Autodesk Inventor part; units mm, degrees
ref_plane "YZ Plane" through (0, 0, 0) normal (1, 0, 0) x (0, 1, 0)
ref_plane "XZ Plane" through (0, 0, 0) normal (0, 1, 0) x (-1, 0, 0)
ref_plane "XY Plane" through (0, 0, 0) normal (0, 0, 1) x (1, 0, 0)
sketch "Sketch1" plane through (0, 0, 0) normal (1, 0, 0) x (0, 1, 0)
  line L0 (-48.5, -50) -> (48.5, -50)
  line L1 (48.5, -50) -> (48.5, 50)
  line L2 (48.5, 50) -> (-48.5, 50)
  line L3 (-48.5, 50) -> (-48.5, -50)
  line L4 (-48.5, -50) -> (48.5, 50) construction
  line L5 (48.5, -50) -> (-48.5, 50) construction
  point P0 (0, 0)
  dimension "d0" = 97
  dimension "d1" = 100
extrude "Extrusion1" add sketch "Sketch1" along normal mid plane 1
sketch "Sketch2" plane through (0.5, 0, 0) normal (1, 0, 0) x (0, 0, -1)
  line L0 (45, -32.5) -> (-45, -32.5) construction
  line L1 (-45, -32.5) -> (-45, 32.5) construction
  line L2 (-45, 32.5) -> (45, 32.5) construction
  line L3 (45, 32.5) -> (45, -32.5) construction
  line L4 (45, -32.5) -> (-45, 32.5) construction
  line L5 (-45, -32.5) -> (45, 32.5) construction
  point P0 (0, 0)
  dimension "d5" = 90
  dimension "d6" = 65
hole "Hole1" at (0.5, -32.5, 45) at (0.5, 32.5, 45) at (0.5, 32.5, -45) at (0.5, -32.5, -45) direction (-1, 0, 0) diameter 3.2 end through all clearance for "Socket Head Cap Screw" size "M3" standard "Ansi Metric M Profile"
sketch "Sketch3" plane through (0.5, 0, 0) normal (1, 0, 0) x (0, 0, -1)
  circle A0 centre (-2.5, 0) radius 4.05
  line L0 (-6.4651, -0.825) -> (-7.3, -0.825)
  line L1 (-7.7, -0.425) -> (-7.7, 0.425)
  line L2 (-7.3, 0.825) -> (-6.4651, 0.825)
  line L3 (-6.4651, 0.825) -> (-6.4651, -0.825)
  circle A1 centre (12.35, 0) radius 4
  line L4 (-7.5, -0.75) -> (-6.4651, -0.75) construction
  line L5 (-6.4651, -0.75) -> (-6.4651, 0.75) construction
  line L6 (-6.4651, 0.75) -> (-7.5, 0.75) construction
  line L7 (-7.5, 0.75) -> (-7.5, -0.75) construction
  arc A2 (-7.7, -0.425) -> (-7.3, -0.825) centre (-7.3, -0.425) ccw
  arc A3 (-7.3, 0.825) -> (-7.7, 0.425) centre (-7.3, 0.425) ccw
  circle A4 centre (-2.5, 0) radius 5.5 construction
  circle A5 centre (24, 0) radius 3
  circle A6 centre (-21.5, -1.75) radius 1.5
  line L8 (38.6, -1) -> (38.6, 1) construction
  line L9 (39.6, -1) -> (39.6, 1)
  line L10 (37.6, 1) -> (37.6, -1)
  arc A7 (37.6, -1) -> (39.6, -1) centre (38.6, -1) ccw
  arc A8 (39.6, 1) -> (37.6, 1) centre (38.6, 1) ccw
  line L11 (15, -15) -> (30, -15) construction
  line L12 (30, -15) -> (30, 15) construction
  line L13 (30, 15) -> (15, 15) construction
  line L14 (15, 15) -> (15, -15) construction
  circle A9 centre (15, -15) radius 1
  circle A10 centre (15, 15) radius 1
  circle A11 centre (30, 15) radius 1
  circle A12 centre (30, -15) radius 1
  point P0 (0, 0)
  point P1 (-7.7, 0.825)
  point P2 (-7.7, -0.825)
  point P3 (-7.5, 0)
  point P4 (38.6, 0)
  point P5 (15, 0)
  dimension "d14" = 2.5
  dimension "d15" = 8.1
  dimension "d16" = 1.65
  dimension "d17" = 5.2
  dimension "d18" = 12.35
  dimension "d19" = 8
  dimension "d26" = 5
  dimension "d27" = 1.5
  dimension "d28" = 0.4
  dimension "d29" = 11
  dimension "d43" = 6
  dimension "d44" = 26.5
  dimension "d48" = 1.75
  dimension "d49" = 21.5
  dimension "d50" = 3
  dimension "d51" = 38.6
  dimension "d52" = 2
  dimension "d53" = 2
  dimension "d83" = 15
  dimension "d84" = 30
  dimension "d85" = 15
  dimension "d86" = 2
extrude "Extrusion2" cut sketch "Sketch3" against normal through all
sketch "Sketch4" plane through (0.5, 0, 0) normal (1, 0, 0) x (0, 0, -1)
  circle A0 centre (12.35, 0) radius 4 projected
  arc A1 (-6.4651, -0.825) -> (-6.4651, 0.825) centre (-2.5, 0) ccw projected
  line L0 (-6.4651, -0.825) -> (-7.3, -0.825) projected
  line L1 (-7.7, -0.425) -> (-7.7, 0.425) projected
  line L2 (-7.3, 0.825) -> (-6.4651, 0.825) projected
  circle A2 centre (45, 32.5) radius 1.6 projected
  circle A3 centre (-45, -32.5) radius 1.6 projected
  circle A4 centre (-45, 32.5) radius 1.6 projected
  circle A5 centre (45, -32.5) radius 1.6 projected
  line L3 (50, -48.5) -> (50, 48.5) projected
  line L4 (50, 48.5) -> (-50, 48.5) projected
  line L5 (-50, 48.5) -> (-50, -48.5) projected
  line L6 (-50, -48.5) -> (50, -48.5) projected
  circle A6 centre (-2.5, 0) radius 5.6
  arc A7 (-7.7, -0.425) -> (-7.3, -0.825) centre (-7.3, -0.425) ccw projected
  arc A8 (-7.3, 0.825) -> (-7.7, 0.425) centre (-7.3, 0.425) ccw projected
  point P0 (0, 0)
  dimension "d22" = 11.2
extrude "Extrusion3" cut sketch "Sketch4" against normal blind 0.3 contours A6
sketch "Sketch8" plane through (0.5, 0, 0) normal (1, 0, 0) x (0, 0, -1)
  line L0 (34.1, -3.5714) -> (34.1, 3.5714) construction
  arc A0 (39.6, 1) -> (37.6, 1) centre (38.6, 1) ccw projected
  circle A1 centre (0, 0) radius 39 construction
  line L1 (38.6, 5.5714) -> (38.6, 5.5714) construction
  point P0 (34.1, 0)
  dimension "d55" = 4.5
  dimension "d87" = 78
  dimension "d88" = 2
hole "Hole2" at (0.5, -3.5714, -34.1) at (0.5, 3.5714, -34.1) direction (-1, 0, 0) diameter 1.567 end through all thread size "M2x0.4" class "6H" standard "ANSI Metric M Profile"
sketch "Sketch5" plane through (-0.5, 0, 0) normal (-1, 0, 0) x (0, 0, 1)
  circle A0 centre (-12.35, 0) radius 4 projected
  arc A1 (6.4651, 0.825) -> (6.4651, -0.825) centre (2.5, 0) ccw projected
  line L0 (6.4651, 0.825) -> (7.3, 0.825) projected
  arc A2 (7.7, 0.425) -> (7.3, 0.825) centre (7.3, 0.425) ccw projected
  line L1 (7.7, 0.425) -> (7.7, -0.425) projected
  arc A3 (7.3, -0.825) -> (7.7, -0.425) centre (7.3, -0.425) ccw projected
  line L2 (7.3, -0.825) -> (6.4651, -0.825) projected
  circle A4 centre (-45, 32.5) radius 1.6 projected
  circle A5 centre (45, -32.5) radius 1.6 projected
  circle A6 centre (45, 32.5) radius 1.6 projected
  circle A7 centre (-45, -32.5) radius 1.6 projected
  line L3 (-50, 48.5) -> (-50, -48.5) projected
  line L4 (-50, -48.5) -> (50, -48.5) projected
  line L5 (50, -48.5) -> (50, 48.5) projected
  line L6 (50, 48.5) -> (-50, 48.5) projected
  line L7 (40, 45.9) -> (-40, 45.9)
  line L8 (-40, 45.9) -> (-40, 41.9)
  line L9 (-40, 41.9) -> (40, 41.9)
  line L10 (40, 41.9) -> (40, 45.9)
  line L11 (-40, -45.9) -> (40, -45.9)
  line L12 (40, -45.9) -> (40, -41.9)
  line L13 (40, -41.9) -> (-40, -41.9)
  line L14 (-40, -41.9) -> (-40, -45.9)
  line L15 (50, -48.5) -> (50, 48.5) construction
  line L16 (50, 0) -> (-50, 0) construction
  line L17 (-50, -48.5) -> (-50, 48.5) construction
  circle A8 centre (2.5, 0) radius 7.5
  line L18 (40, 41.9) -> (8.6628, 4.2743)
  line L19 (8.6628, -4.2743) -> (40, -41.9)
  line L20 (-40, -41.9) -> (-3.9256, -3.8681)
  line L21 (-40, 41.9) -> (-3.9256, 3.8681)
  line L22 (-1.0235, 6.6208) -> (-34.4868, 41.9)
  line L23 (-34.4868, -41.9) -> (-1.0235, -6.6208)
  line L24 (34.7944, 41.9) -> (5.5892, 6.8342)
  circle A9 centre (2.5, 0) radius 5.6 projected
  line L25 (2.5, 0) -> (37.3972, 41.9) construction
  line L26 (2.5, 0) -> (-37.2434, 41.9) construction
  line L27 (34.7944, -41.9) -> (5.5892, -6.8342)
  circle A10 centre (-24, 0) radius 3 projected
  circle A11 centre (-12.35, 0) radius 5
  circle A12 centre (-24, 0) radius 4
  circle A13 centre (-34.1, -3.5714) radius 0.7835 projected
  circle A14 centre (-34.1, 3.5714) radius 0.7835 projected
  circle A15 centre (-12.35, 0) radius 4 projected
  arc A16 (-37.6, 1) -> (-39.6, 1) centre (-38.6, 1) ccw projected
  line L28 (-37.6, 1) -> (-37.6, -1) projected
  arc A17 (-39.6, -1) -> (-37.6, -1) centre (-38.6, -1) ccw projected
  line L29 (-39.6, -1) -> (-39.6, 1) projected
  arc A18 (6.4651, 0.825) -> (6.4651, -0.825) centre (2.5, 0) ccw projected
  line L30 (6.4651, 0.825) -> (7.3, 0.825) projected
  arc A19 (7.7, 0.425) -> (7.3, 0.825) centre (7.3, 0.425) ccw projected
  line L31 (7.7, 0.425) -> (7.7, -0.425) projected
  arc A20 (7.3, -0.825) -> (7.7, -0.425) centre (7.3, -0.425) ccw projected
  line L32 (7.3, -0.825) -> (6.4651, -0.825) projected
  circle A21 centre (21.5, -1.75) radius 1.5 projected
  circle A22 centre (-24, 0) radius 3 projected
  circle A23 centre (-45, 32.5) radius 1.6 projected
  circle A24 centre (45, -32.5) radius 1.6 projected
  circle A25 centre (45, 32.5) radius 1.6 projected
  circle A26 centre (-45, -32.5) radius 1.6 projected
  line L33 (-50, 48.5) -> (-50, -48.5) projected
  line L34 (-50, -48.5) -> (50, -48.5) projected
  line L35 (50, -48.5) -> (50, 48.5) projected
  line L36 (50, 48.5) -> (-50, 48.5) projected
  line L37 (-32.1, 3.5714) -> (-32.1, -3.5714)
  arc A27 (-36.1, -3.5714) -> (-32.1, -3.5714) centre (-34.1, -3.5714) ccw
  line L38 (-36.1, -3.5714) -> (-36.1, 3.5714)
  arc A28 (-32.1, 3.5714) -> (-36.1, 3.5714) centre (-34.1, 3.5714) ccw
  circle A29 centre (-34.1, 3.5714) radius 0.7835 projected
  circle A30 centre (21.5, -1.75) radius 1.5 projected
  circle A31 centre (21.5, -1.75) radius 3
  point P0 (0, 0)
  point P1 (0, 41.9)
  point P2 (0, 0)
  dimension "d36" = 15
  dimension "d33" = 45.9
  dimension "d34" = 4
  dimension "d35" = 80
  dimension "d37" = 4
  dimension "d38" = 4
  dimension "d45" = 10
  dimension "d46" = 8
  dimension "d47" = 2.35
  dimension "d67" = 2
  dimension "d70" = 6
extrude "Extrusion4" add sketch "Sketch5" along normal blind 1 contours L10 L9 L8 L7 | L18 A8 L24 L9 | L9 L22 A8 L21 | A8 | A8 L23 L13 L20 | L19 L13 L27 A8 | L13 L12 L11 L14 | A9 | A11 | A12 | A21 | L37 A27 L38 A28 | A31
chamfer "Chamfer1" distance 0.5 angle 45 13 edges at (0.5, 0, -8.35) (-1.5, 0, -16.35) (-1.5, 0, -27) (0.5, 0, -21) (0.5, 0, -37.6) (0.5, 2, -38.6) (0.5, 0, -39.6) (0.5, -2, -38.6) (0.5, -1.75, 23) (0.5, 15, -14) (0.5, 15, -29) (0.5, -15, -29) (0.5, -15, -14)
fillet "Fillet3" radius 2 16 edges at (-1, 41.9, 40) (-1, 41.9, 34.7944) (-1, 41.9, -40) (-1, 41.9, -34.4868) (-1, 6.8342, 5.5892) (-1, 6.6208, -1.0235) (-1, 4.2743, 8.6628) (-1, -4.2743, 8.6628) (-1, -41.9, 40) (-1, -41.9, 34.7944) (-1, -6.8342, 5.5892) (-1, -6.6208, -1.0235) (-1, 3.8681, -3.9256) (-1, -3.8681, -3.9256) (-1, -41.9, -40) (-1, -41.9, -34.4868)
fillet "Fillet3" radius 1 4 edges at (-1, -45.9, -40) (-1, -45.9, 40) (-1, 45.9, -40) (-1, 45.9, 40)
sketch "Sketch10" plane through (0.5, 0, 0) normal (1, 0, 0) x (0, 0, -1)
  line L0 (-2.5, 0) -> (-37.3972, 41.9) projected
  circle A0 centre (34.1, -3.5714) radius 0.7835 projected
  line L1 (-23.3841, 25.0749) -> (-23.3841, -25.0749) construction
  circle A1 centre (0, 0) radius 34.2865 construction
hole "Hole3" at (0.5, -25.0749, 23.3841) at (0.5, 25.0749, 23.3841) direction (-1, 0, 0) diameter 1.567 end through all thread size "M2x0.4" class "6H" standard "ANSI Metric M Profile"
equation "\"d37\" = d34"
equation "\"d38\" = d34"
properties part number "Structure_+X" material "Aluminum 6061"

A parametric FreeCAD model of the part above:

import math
import FreeCAD as App
import Part
import Sketcher
from FreeCAD import Vector
Q = App.Units.Quantity


def edges_at(feature, points):
    """Names of the edges that pass closest to the given points."""
    edges = feature.Shape.Edges
    near = lambda p: min(range(len(edges)), key=lambda i: edges[i].distToShape(Part.Vertex(*p))[0])
    return sorted({f"Edge{near(p) + 1}" for p in points})


def add_polygon(sketch, points):
    """Adds a closed chain of lines whose ends are joined by coincident constraints."""
    first, n = sketch.GeometryCount, len(points)
    for a, b in zip(points, points[1:] + points[:1]):
        sketch.addGeometry(Part.LineSegment(App.Vector(*a, 0), App.Vector(*b, 0)), False)
    for i in range(n):
        sketch.addConstraint(Sketcher.Constraint("Coincident", first + i, 2, first + (i + 1) % n, 1))

doc = App.newDocument("Part")
body = doc.addObject("PartDesign::Body", "Body")

# Sketch on YZ plane
sketch1 = doc.addObject("Sketcher::SketchObject", "Sketch")
body.addObject(sketch1)
sketch1.AttachmentSupport = (doc.YZ_Plane, [""])
sketch1.MapMode = "FlatFace"
add_polygon(sketch1, [(-48.5, 50), (-48.5, -50), (48.5, -50), (48.5, 50)])  # lines 0-3
sketch1.addConstraint(Sketcher.Constraint("Vertical", 0))
sketch1.addConstraint(Sketcher.Constraint("Horizontal", 1))
sketch1.addConstraint(Sketcher.Constraint("Vertical", 2))
sketch1.addConstraint(Sketcher.Constraint("Horizontal", 3))
sketch1.addConstraint(Sketcher.Constraint("Symmetric", 0, 2, 2, 2, -1, 1))
sketch1.addConstraint(Sketcher.Constraint("DistanceX", 1, 1, 1, 2, 97.0))
sketch1.addConstraint(Sketcher.Constraint("DistanceY", 0, 2, 0, 1, 100.0))
pad1 = doc.addObject("PartDesign::Pad", "Pad")
body.addObject(pad1)
pad1.Profile = sketch1
pad1.Length = 1
pad1.Midplane = True

# Sketch on YZ plane
sketch2 = doc.addObject("Sketcher::SketchObject", "Sketch001")
body.addObject(sketch2)
sketch2.AttachmentSupport = (doc.YZ_Plane, [""])
sketch2.MapMode = "FlatFace"
sketch2.AttachmentOffset = App.Placement(Vector(0, 0, 0.5), App.Rotation())
sketch2.addGeometry(Part.Circle(Vector(-32.5, 45, 0), Vector(0, 0, 1), 1.6), False)
sketch2.addGeometry(Part.Circle(Vector(32.5, 45, 0), Vector(0, 0, 1), 1.6), False)
sketch2.addGeometry(Part.Circle(Vector(32.5, -45, 0), Vector(0, 0, 1), 1.6), False)
sketch2.addGeometry(Part.Circle(Vector(-32.5, -45, 0), Vector(0, 0, 1), 1.6), False)
sketch2.addConstraint(Sketcher.Constraint("Equal", 0, 1))
sketch2.addConstraint(Sketcher.Constraint("Equal", 1, 2))
sketch2.addConstraint(Sketcher.Constraint("Equal", 2, 3))
sketch2.addConstraint(Sketcher.Constraint("Symmetric", 0, 3, 2, 3, -1, 1))
sketch2.addConstraint(Sketcher.Constraint("Symmetric", 1, 3, 3, 3, -1, 1))
sketch2.addConstraint(Sketcher.Constraint("Symmetric", 0, 3, 1, 3, -2))
sketch2.addConstraint(Sketcher.Constraint("Diameter", 0, 3.2))
sketch2.addConstraint(Sketcher.Constraint("DistanceY", -1, 1, 0, 3, 45.0))
sketch2.addConstraint(Sketcher.Constraint("DistanceX", 0, 3, 1, 3, 65.0))
doc.recompute()
hole = doc.addObject("PartDesign::Hole", "Hole")
body.addObject(hole)
hole.Profile = sketch2
hole.ThreadType = "None"
hole.Diameter = 3.2
hole.DepthType = "ThroughAll"

# Sketch on YZ plane
sketch3 = doc.addObject("Sketcher::SketchObject", "Sketch002")
body.addObject(sketch3)
sketch3.AttachmentSupport = (doc.YZ_Plane, [""])
sketch3.MapMode = "FlatFace"
sketch3.AttachmentOffset = App.Placement(Vector(0, 0, 0.5), App.Rotation())
sketch3.addGeometry(Part.ArcOfCircle(Part.Circle(Vector(0, 2.5, 0), Vector(0, 0, 1), 4.05), math.radians(101.753574), math.radians(438.246426)), False)
sketch3.addGeometry(Part.LineSegment(Vector(0.825, 6.4651, 0), Vector(0.825, 7.3, 0)), False)
sketch3.addGeometry(Part.ArcOfCircle(Part.Circle(Vector(0.425, 7.3, 0), Vector(0, 0, 1), 0.4), math.radians(0), math.radians(90)), False)
sketch3.addGeometry(Part.LineSegment(Vector(0.425, 7.7, 0), Vector(-0.425, 7.7, 0)), False)
sketch3.addGeometry(Part.ArcOfCircle(Part.Circle(Vector(-0.425, 7.3, 0), Vector(0, 0, 1), 0.4), math.radians(90), math.radians(180)), False)
sketch3.addGeometry(Part.LineSegment(Vector(-0.825, 7.3, 0), Vector(-0.825, 6.4651, 0)), False)
sketch3.addGeometry(Part.Circle(Vector(0, -12.35, 0), Vector(0, 0, 1), 4), False)
sketch3.addGeometry(Part.Circle(Vector(0, -24, 0), Vector(0, 0, 1), 3), False)
sketch3.addGeometry(Part.Circle(Vector(-1.75, 21.5, 0), Vector(0, 0, 1), 1.5), False)
sketch3.addGeometry(Part.ArcOfCircle(Part.Circle(Vector(-1, -38.6, 0), Vector(0, 0, 1), 1), math.radians(90), math.radians(270)), False)
sketch3.addGeometry(Part.LineSegment(Vector(-1, -39.6, 0), Vector(1, -39.6, 0)), False)
sketch3.addGeometry(Part.ArcOfCircle(Part.Circle(Vector(1, -38.6, 0), Vector(0, 0, 1), 1), math.radians(-90), math.radians(90)), False)
sketch3.addGeometry(Part.LineSegment(Vector(1, -37.6, 0), Vector(-1, -37.6, 0)), False)
sketch3.addGeometry(Part.Circle(Vector(-15, -15, 0), Vector(0, 0, 1), 1), False)
sketch3.addGeometry(Part.Circle(Vector(15, -15, 0), Vector(0, 0, 1), 1), False)
sketch3.addGeometry(Part.Circle(Vector(15, -30, 0), Vector(0, 0, 1), 1), False)
sketch3.addGeometry(Part.Circle(Vector(-15, -30, 0), Vector(0, 0, 1), 1), False)
sketch3.addConstraint(Sketcher.Constraint("Coincident", 0, 2, 1, 1))
sketch3.addConstraint(Sketcher.Constraint("Tangent", 1, 2, 2, 1))
sketch3.addConstraint(Sketcher.Constraint("Tangent", 2, 2, 3, 1))
sketch3.addConstraint(Sketcher.Constraint("Tangent", 3, 2, 4, 1))
sketch3.addConstraint(Sketcher.Constraint("Tangent", 4, 2, 5, 1))
sketch3.addConstraint(Sketcher.Constraint("Coincident", 5, 2, 0, 1))
sketch3.addConstraint(Sketcher.Constraint("Tangent", 9, 2, 10, 1))
sketch3.addConstraint(Sketcher.Constraint("Tangent", 10, 2, 11, 1))
sketch3.addConstraint(Sketcher.Constraint("Tangent", 11, 2, 12, 1))
sketch3.addConstraint(Sketcher.Constraint("Tangent", 12, 2, 9, 1))
sketch3.addConstraint(Sketcher.Constraint("Vertical", 1))
sketch3.addConstraint(Sketcher.Constraint("Horizontal", 3))
sketch3.addConstraint(Sketcher.Constraint("Vertical", 5))
sketch3.addConstraint(Sketcher.Constraint("Horizontal", 10))
sketch3.addConstraint(Sketcher.Constraint("Horizontal", 12))
sketch3.addConstraint(Sketcher.Constraint("Equal", 2, 4))
sketch3.addConstraint(Sketcher.Constraint("Equal", 11, 13))
sketch3.addConstraint(Sketcher.Constraint("Equal", 13, 14))
sketch3.addConstraint(Sketcher.Constraint("Equal", 14, 15))
sketch3.addConstraint(Sketcher.Constraint("Equal", 15, 16))
sketch3.addConstraint(Sketcher.Constraint("Symmetric", 13, 3, 14, 3, -2))
sketch3.addConstraint(Sketcher.Constraint("Symmetric", 15, 3, 16, 3, -2))
sketch3.addConstraint(Sketcher.Constraint("Symmetric", 0, 2, 5, 2, -2))
sketch3.addConstraint(Sketcher.Constraint("PointOnObject", 6, 3, -2))
sketch3.addConstraint(Sketcher.Constraint("PointOnObject", 7, 3, -2))
sketch3.addConstraint(Sketcher.Constraint("Vertical", 14, 3, 15, 3))
sketch3.addConstraint(Sketcher.Constraint("Diameter", 6, 8.0))
sketch3.addConstraint(Sketcher.Constraint("Diameter", 7, 6.0))
sketch3.addConstraint(Sketcher.Constraint("Diameter", 8, 3.0))
sketch3.addConstraint(Sketcher.Constraint("Diameter", 13, 2.0))
sketch3.addConstraint(Sketcher.Constraint("Radius", 2, 0.4))
sketch3.addConstraint(Sketcher.Constraint("DistanceX", 10, 1, 10, 2, 2.0))
sketch3.addConstraint(Sketcher.Constraint("Radius", 0, 4.05))
sketch3.addConstraint(Sketcher.Constraint("DistanceX", 13, 3, -1, 1, 15.0))
sketch3.addConstraint(Sketcher.Constraint("DistanceY", 13, 3, -1, 1, 15.0))
sketch3.addConstraint(Sketcher.Constraint("DistanceY", 15, 3, -1, 1, 30.0))
sketch3.addConstraint(Sketcher.Constraint("DistanceY", 15, 3, 7, 3, 6.0))
sketch3.addConstraint(Sketcher.Constraint("DistanceY", -1, 1, 0, 3, 2.5))
sketch3.addConstraint(Sketcher.Constraint("DistanceY", -1, 1, 8, 3, 21.5))
sketch3.addConstraint(Sketcher.Constraint("DistanceY", 9, 3, -1, 1, 38.6))
sketch3.addConstraint(Sketcher.Constraint("DistanceY", 0, 3, 2, 2, 5.2))
sketch3.addConstraint(Sketcher.Constraint("DistanceY", 6, 3, -1, 1, 12.35))
sketch3.addConstraint(Sketcher.Constraint("DistanceX", 8, 3, -1, 1, 1.75))
sketch3.addConstraint(Sketcher.Constraint("DistanceX", 4, 2, 1, 2, 1.65))
sketch3.addConstraint(Sketcher.Constraint("DistanceX", 9, 3, -1, 1, 1.0))
pocket1 = doc.addObject("PartDesign::Pocket", "Pocket")
body.addObject(pocket1)
pocket1.Profile = sketch3
pocket1.Type = "ThroughAll"

# Sketch on YZ plane
sketch4 = doc.addObject("Sketcher::SketchObject", "Sketch003")
body.addObject(sketch4)
sketch4.AttachmentSupport = (doc.YZ_Plane, [""])
sketch4.MapMode = "FlatFace"
sketch4.AttachmentOffset = App.Placement(Vector(0, 0, 0.5), App.Rotation())
sketch4.addGeometry(Part.Circle(Vector(0, 2.5, 0), Vector(0, 0, 1), 5.6), False)
sketch4.addGeometry(Part.ArcOfCircle(Part.Circle(Vector(0, 2.5, 0), Vector(0, 0, 1), 4.050018), math.radians(101.753574), math.radians(438.246426)), False)
sketch4.addGeometry(Part.LineSegment(Vector(-0.825, 6.4651, 0), Vector(-0.825, 7.3, 0)), False)
sketch4.addGeometry(Part.ArcOfCircle(Part.Circle(Vector(-0.425, 7.3, 0), Vector(0, 0, 1), 0.4), math.radians(90), math.radians(180)), False)
sketch4.addGeometry(Part.LineSegment(Vector(-0.425, 7.7, 0), Vector(0.425, 7.7, 0)), False)
sketch4.addGeometry(Part.ArcOfCircle(Part.Circle(Vector(0.425, 7.3, 0), Vector(0, 0, 1), 0.4), math.radians(0), math.radians(90)), False)
sketch4.addGeometry(Part.LineSegment(Vector(0.825, 7.3, 0), Vector(0.825, 6.4651, 0)), False)
sketch4.addConstraint(Sketcher.Constraint("Coincident", 1, 1, 2, 1))
sketch4.addConstraint(Sketcher.Constraint("Tangent", 2, 2, 3, 2))
sketch4.addConstraint(Sketcher.Constraint("Tangent", 3, 1, 4, 1))
sketch4.addConstraint(Sketcher.Constraint("Tangent", 4, 2, 5, 2))
sketch4.addConstraint(Sketcher.Constraint("Tangent", 5, 1, 6, 1))
sketch4.addConstraint(Sketcher.Constraint("Coincident", 6, 2, 1, 2))
sketch4.addConstraint(Sketcher.Constraint("Vertical", 2))
sketch4.addConstraint(Sketcher.Constraint("Horizontal", 4))
sketch4.addConstraint(Sketcher.Constraint("Vertical", 6))
sketch4.addConstraint(Sketcher.Constraint("Coincident", 1, 3, 0, 3))
sketch4.addConstraint(Sketcher.Constraint("Equal", 3, 5))
sketch4.addConstraint(Sketcher.Constraint("Symmetric", 1, 1, 6, 2, -2))
sketch4.addConstraint(Sketcher.Constraint("Diameter", 0, 11.2))
sketch4.addConstraint(Sketcher.Constraint("Radius", 3, 0.4))
sketch4.addConstraint(Sketcher.Constraint("Radius", 1, 4.05))
sketch4.addConstraint(Sketcher.Constraint("DistanceX", 4, 1, 4, 2, 0.85))
sketch4.addConstraint(Sketcher.Constraint("DistanceY", -1, 1, 0, 3, 2.5))
sketch4.addConstraint(Sketcher.Constraint("DistanceY", -1, 1, 3, 3, 7.3))
pocket2 = doc.addObject("PartDesign::Pocket", "Pocket001")
body.addObject(pocket2)
pocket2.Profile = sketch4
pocket2.Length = 0.3

# Sketch on YZ plane
sketch5 = doc.addObject("Sketcher::SketchObject", "Sketch004")
body.addObject(sketch5)
sketch5.AttachmentSupport = (doc.YZ_Plane, [""])
sketch5.MapMode = "FlatFace"
sketch5.AttachmentOffset = App.Placement(Vector(0, 0, 0.5), App.Rotation())
sketch5.addGeometry(Part.Circle(Vector(-3.5714, -34.1, 0), Vector(0, 0, 1), 0.7835), False)
sketch5.addGeometry(Part.Circle(Vector(3.5714, -34.1, 0), Vector(0, 0, 1), 0.7835), False)
sketch5.addConstraint(Sketcher.Constraint("Equal", 0, 1))
sketch5.addConstraint(Sketcher.Constraint("Symmetric", 0, 3, 1, 3, -2))
sketch5.addConstraint(Sketcher.Constraint("Diameter", 0, 1.567))
sketch5.addConstraint(Sketcher.Constraint("DistanceY", 0, 3, -1, 1, 34.1))
sketch5.addConstraint(Sketcher.Constraint("DistanceX", 0, 3, -1, 1, 3.5714))
doc.recompute()
hole2 = doc.addObject("PartDesign::Hole", "Hole001")
body.addObject(hole2)
hole2.Profile = sketch5
hole2.ThreadType = "None"
hole2.Diameter = 1.567
hole2.DepthType = "ThroughAll"

# Sketch on YZ plane
sketch6 = doc.addObject("Sketcher::SketchObject", "Sketch005")
body.addObject(sketch6)
sketch6.AttachmentSupport = (doc.YZ_Plane, [""])
sketch6.MapMode = "FlatFace"
sketch6.AttachmentOffset = App.Placement(Vector(0, 0, -0.5), App.Rotation())
sketch6.addGeometry(Part.LineSegment(Vector(41.9, 40, 0), Vector(45.9, 40, 0)), False)
sketch6.addGeometry(Part.LineSegment(Vector(45.9, 40, 0), Vector(45.9, -40, 0)), False)
sketch6.addGeometry(Part.LineSegment(Vector(45.9, -40, 0), Vector(41.9, -40, 0)), False)
sketch6.addGeometry(Part.LineSegment(Vector(41.9, -40, 0), Vector(3.8681, -3.9256, 0)), False)
sketch6.addGeometry(Part.ArcOfCircle(Part.Circle(Vector(0, 2.5, 0), Vector(0, 0, 1), 7.5), math.radians(-121.047213), math.radians(-58.952787)), False)
sketch6.addGeometry(Part.LineSegment(Vector(-3.8681, -3.9256, 0), Vector(-41.9, -40, 0)), False)
sketch6.addGeometry(Part.LineSegment(Vector(-41.9, -40, 0), Vector(-45.9, -40, 0)), False)
sketch6.addGeometry(Part.LineSegment(Vector(-45.9, -40, 0), Vector(-45.9, 40, 0)), False)
sketch6.addGeometry(Part.LineSegment(Vector(-45.9, 40, 0), Vector(-41.9, 40, 0)), False)
sketch6.addGeometry(Part.LineSegment(Vector(-41.9, 40, 0), Vector(-4.2743, 8.6628, 0)), False)
sketch6.addGeometry(Part.ArcOfCircle(Part.Circle(Vector(0, 2.5, 0), Vector(0, 0, 1), 7.5), math.radians(55.256192), math.radians(124.743808)), False)
sketch6.addGeometry(Part.LineSegment(Vector(4.2743, 8.6628, 0), Vector(41.9, 40, 0)), False)
sketch6.addGeometry(Part.LineSegment(Vector(41.9, -34.4868, 0), Vector(41.9, 34.7944, 0)), False)
sketch6.addGeometry(Part.LineSegment(Vector(41.9, 34.7944, 0), Vector(6.8342, 5.5892, 0)), False)
sketch6.addGeometry(Part.ArcOfCircle(Part.Circle(Vector(0, 2.5, 0), Vector(0, 0, 1), 7.5), math.radians(-28.021303), math.radians(24.323954)), False)
sketch6.addGeometry(Part.LineSegment(Vector(6.6208, -1.0235, 0), Vector(41.9, -34.4868, 0)), False)
sketch6.addGeometry(Part.ArcOfCircle(Part.Circle(Vector(0, 2.5, 0), Vector(0, 0, 1), 7.5), math.radians(155.676046), math.radians(208.021303)), False)
sketch6.addGeometry(Part.LineSegment(Vector(-6.8342, 5.5892, 0), Vector(-41.9, 34.7944, 0)), False)
sketch6.addGeometry(Part.LineSegment(Vector(-41.9, 34.7944, 0), Vector(-41.9, -34.4868, 0)), False)
sketch6.addGeometry(Part.LineSegment(Vector(-41.9, -34.4868, 0), Vector(-6.6208, -1.0235, 0)), False)
sketch6.addGeometry(Part.LineSegment(Vector(0.825, 6.4651, 0), Vector(0.825, 7.3, 0)), False)
sketch6.addGeometry(Part.ArcOfCircle(Part.Circle(Vector(0.425, 7.3, 0), Vector(0, 0, 1), 0.4), math.radians(0), math.radians(90)), False)
sketch6.addGeometry(Part.LineSegment(Vector(0.425, 7.7, 0), Vector(-0.425, 7.7, 0)), False)
sketch6.addGeometry(Part.ArcOfCircle(Part.Circle(Vector(-0.425, 7.3, 0), Vector(0, 0, 1), 0.4), math.radians(90), math.radians(180)), False)
sketch6.addGeometry(Part.LineSegment(Vector(-0.825, 7.3, 0), Vector(-0.825, 6.4651, 0)), False)
sketch6.addGeometry(Part.ArcOfCircle(Part.Circle(Vector(0, 2.5, 0), Vector(0, 0, 1), 4.050018), math.radians(101.753574), math.radians(438.246426)), False)
sketch6.addGeometry(Part.Circle(Vector(0, -12.35, 0), Vector(0, 0, 1), 5), False)
sketch6.addGeometry(Part.Circle(Vector(0, -12.35, 0), Vector(0, 0, 1), 4), False)
sketch6.addGeometry(Part.Circle(Vector(0, -24, 0), Vector(0, 0, 1), 4), False)
sketch6.addGeometry(Part.Circle(Vector(0, -24, 0), Vector(0, 0, 1), 3), False)
sketch6.addGeometry(Part.Circle(Vector(-1.75, 21.5, 0), Vector(0, 0, 1), 3), False)
sketch6.addGeometry(Part.LineSegment(Vector(-3.5714, -32.1, 0), Vector(3.5714, -32.1, 0)), False)
sketch6.addGeometry(Part.ArcOfCircle(Part.Circle(Vector(3.5714, -34.1, 0), Vector(0, 0, 1), 2), math.radians(-90), math.radians(90)), False)
sketch6.addGeometry(Part.LineSegment(Vector(3.5714, -36.1, 0), Vector(-3.5714, -36.1, 0)), False)
sketch6.addGeometry(Part.ArcOfCircle(Part.Circle(Vector(-3.5714, -34.1, 0), Vector(0, 0, 1), 2), math.radians(90), math.radians(270)), False)
sketch6.addGeometry(Part.Circle(Vector(-3.5714, -34.1, 0), Vector(0, 0, 1), 0.7835), False)
sketch6.addGeometry(Part.Circle(Vector(3.5714, -34.1, 0), Vector(0, 0, 1), 0.7835), False)
sketch6.addConstraint(Sketcher.Constraint("Coincident", 0, 2, 1, 1))
sketch6.addConstraint(Sketcher.Constraint("Coincident", 1, 2, 2, 1))
sketch6.addConstraint(Sketcher.Constraint("Coincident", 2, 2, 3, 1))
sketch6.addConstraint(Sketcher.Constraint("Coincident", 3, 2, 4, 2))
sketch6.addConstraint(Sketcher.Constraint("Coincident", 4, 1, 5, 1))
sketch6.addConstraint(Sketcher.Constraint("Coincident", 5, 2, 6, 1))
sketch6.addConstraint(Sketcher.Constraint("Coincident", 6, 2, 7, 1))
sketch6.addConstraint(Sketcher.Constraint("Coincident", 7, 2, 8, 1))
sketch6.addConstraint(Sketcher.Constraint("Coincident", 8, 2, 9, 1))
sketch6.addConstraint(Sketcher.Constraint("Coincident", 9, 2, 10, 2))
sketch6.addConstraint(Sketcher.Constraint("Coincident", 10, 1, 11, 1))
sketch6.addConstraint(Sketcher.Constraint("Coincident", 11, 2, 0, 1))
sketch6.addConstraint(Sketcher.Constraint("Coincident", 12, 2, 13, 1))
sketch6.addConstraint(Sketcher.Constraint("Coincident", 13, 2, 14, 2))
sketch6.addConstraint(Sketcher.Constraint("Coincident", 14, 1, 15, 1))
sketch6.addConstraint(Sketcher.Constraint("Coincident", 15, 2, 12, 1))
sketch6.addConstraint(Sketcher.Constraint("Coincident", 16, 1, 17, 1))
sketch6.addConstraint(Sketcher.Constraint("Coincident", 17, 2, 18, 1))
sketch6.addConstraint(Sketcher.Constraint("Coincident", 18, 2, 19, 1))
sketch6.addConstraint(Sketcher.Constraint("Coincident", 19, 2, 16, 2))
sketch6.addConstraint(Sketcher.Constraint("Tangent", 20, 2, 21, 1))
sketch6.addConstraint(Sketcher.Constraint("Tangent", 21, 2, 22, 1))
sketch6.addConstraint(Sketcher.Constraint("Tangent", 22, 2, 23, 1))
sketch6.addConstraint(Sketcher.Constraint("Tangent", 23, 2, 24, 1))
sketch6.addConstraint(Sketcher.Constraint("Coincident", 24, 2, 25, 1))
sketch6.addConstraint(Sketcher.Constraint("Coincident", 25, 2, 20, 1))
sketch6.addConstraint(Sketcher.Constraint("Tangent", 31, 2, 32, 2))
sketch6.addConstraint(Sketcher.Constraint("Tangent", 32, 1, 33, 1))
sketch6.addConstraint(Sketcher.Constraint("Tangent", 33, 2, 34, 2))
sketch6.addConstraint(Sketcher.Constraint("Tangent", 34, 1, 31, 1))
sketch6.addConstraint(Sketcher.Constraint("Horizontal", 0))
sketch6.addConstraint(Sketcher.Constraint("Vertical", 1))
sketch6.addConstraint(Sketcher.Constraint("Horizontal", 2))
sketch6.addConstraint(Sketcher.Constraint("Horizontal", 6))
sketch6.addConstraint(Sketcher.Constraint("Vertical", 7))
sketch6.addConstraint(Sketcher.Constraint("Horizontal", 8))
sketch6.addConstraint(Sketcher.Constraint("Vertical", 12))
sketch6.addConstraint(Sketcher.Constraint("Vertical", 18))
sketch6.addConstraint(Sketcher.Constraint("Vertical", 20))
sketch6.addConstraint(Sketcher.Constraint("Horizontal", 22))
sketch6.addConstraint(Sketcher.Constraint("Vertical", 24))
sketch6.addConstraint(Sketcher.Constraint("Horizontal", 31))
sketch6.addConstraint(Sketcher.Constraint("Horizontal", 33))
sketch6.addConstraint(Sketcher.Constraint("Coincident", 10, 3, 4, 3))
sketch6.addConstraint(Sketcher.Constraint("Coincident", 14, 3, 4, 3))
sketch6.addConstraint(Sketcher.Constraint("Coincident", 16, 3, 4, 3))
sketch6.addConstraint(Sketcher.Constraint("Coincident", 25, 3, 4, 3))
sketch6.addConstraint(Sketcher.Constraint("Coincident", 27, 3, 26, 3))
sketch6.addConstraint(Sketcher.Constraint("Coincident", 29, 3, 28, 3))
sketch6.addConstraint(Sketcher.Constraint("Coincident", 35, 3, 34, 3))
sketch6.addConstraint(Sketcher.Constraint("Coincident", 36, 3, 32, 3))
sketch6.addConstraint(Sketcher.Constraint("Equal", 4, 10))
sketch6.addConstraint(Sketcher.Constraint("Equal", 10, 14))
sketch6.addConstraint(Sketcher.Constraint("Equal", 14, 16))
sketch6.addConstraint(Sketcher.Constraint("Equal", 21, 23))
sketch6.addConstraint(Sketcher.Constraint("Equal", 27, 28))
sketch6.addConstraint(Sketcher.Constraint("Equal", 29, 30))
sketch6.addConstraint(Sketcher.Constraint("Equal", 35, 36))
sketch6.addConstraint(Sketcher.Constraint("Symmetric", 0, 2, 6, 2, -1, 1))
sketch6.addConstraint(Sketcher.Constraint("Symmetric", 2, 2, 8, 2, -1, 1))
sketch6.addConstraint(Sketcher.Constraint("Symmetric", 3, 2, 4, 1, -2))
sketch6.addConstraint(Sketcher.Constraint("Symmetric", 2, 2, 5, 2, -2))
sketch6.addConstraint(Sketcher.Constraint("Symmetric", 12, 2, 17, 2, -2))
sketch6.addConstraint(Sketcher.Constraint("PointOnObject", 26, 3, -2))
sketch6.addConstraint(Sketcher.Constraint("PointOnObject", 28, 3, -2))
sketch6.addConstraint(Sketcher.Constraint("Parallel", 11, 13))
sketch6.addConstraint(Sketcher.Constraint("Parallel", 3, 15))
sketch6.addConstraint(Sketcher.Constraint("Parallel", 9, 17))
sketch6.addConstraint(Sketcher.Constraint("Parallel", 5, 19))
sketch6.addConstraint(Sketcher.Constraint("Horizontal", 9, 2, 10, 1))
sketch6.addConstraint(Sketcher.Constraint("Horizontal", 13, 2, 16, 1))
sketch6.addConstraint(Sketcher.Constraint("Horizontal", 15, 2, 18, 2))
sketch6.addConstraint(Sketcher.Constraint("Horizontal", 24, 2, 25, 2))
sketch6.addConstraint(Sketcher.Constraint("Vertical", 11, 2, 12, 2))
sketch6.addConstraint(Sketcher.Constraint("Diameter", 26, 10.0))
sketch6.addConstraint(Sketcher.Constraint("Diameter", 27, 8.0))
sketch6.addConstraint(Sketcher.Constraint("Diameter", 29, 6.0))
sketch6.addConstraint(Sketcher.Constraint("Radius", 32, 2.0))
sketch6.addConstraint(Sketcher.Constraint("Radius", 4, 7.5))
sketch6.addConstraint(Sketcher.Constraint("DistanceX", 0, 1, 0, 2, 4.0))
sketch6.addConstraint(Sketcher.Constraint("DistanceY", 1, 2, 1, 1, 80.0))
sketch6.addConstraint(Sketcher.Constraint("DistanceX", -1, 1, 0, 2, 45.9))
sketch6.addConstraint(Sketcher.Constraint("Radius", 21, 0.4))
sketch6.addConstraint(Sketcher.Constraint("Radius", 25, 4.05))
sketch6.addConstraint(Sketcher.Constraint("Diameter", 35, 1.567))
sketch6.addConstraint(Sketcher.Constraint("DistanceY", 28, 3, -1, 1, 24.0))
sketch6.addConstraint(Sketcher.Constraint("DistanceY", 4, 3, 30, 3, 19.0))
sketch6.addConstraint(Sketcher.Constraint("DistanceX", 22, 2, 22, 1, 0.85))
sketch6.addConstraint(Sketcher.Constraint("DistanceY", -1, 1, 4, 3, 2.5))
sketch6.addConstraint(Sketcher.Constraint("DistanceY", -1, 1, 21, 3, 7.3))
sketch6.addConstraint(Sketcher.Constraint("DistanceY", 32, 3, -1, 1, 34.1))
sketch6.addConstraint(Sketcher.Constraint("Angle", 9, Q("-39.7898 deg")))
sketch6.addConstraint(Sketcher.Constraint("DistanceY", 26, 3, -1, 1, 12.35))
sketch6.addConstraint(Sketcher.Constraint("DistanceX", 30, 3, -1, 1, 1.75))
sketch6.addConstraint(Sketcher.Constraint("DistanceX", 10, 1, 13, 2, 2.56))
sketch6.addConstraint(Sketcher.Constraint("DistanceX", 31, 1, 31, 2, 7.1428))
sketch6.addConstraint(Sketcher.Constraint("DistanceY", 12, 1, 12, 2, 69.2812))
sketch6.addConstraint(Sketcher.Constraint("DistanceX", -1, 1, 3, 2, 3.868))
sketch6.addConstraint(Sketcher.Constraint("DistanceX", -1, 1, 32, 3, 3.5714))
pad2 = doc.addObject("PartDesign::Pad", "Pad001")
body.addObject(pad2)
pad2.Profile = sketch6
pad2.Length = 1
pad2.Reversed = True
doc.recompute()

chamfer = doc.addObject("PartDesign::Chamfer", "Chamfer")
body.addObject(chamfer)
chamfer.Base = (pad2, edges_at(pad2, [
    (0.5, 0, -8.35),
    (-1.5, 0, -16.35),
    (-1.5, 0, -27),
    (0.5, 0, -21),
    (0.5, 0, -37.6),
    (0.5, 2, -38.6),
    (0.5, 0, -39.6),
    (0.5, -2, -38.6),
    (0.5, -1.75, 23),
    (0.5, 15, -14),
    (0.5, 15, -29),
    (0.5, -15, -29),
    (0.5, -15, -14),
]))
chamfer.Size = 0.5
doc.recompute()

fillet = doc.addObject("PartDesign::Fillet", "Fillet")
body.addObject(fillet)
fillet.Base = (chamfer, edges_at(chamfer, [
    (-1, 41.9, 40),
    (-1, 41.9, 34.794),
    (-1, 41.9, -40),
    (-1, 41.9, -34.487),
    (-1, 6.834, 5.589),
    (-1, 6.621, -1.024),
    (-1, 4.274, 8.663),
    (-1, -4.274, 8.663),
    (-1, -41.9, 40),
    (-1, -41.9, 34.794),
    (-1, -6.834, 5.589),
    (-1, -6.621, -1.024),
    (-1, 3.868, -3.926),
    (-1, -3.868, -3.926),
    (-1, -41.9, -40),
    (-1, -41.9, -34.487),
]))
fillet.Radius = 2
doc.recompute()

fillet2 = doc.addObject("PartDesign::Fillet", "Fillet001")
body.addObject(fillet2)
fillet2.Base = (fillet, edges_at(fillet, [
    (-1, -45.9, -40),
    (-1, -45.9, 40),
    (-1, 45.9, -40),
    (-1, 45.9, 40),
]))
fillet2.Radius = 1

# Sketch on YZ plane
sketch7 = doc.addObject("Sketcher::SketchObject", "Sketch006")
body.addObject(sketch7)
sketch7.AttachmentSupport = (doc.YZ_Plane, [""])
sketch7.MapMode = "FlatFace"
sketch7.AttachmentOffset = App.Placement(Vector(0, 0, 0.5), App.Rotation())
sketch7.addGeometry(Part.Circle(Vector(-25.0749, 23.3841, 0), Vector(0, 0, 1), 0.7835), False)
sketch7.addGeometry(Part.Circle(Vector(25.0749, 23.3841, 0), Vector(0, 0, 1), 0.7835), False)
sketch7.addConstraint(Sketcher.Constraint("Equal", 0, 1))
sketch7.addConstraint(Sketcher.Constraint("Symmetric", 0, 3, 1, 3, -2))
sketch7.addConstraint(Sketcher.Constraint("Diameter", 0, 1.567))
sketch7.addConstraint(Sketcher.Constraint("DistanceX", 0, 3, -1, 1, 25.075))
sketch7.addConstraint(Sketcher.Constraint("DistanceY", -1, 1, 0, 3, 23.384))
doc.recompute()
hole3 = doc.addObject("PartDesign::Hole", "Hole002")
body.addObject(hole3)
hole3.Profile = sketch7
hole3.ThreadType = "None"
hole3.Diameter = 1.567
hole3.DepthType = "ThroughAll"

doc.recompute()
